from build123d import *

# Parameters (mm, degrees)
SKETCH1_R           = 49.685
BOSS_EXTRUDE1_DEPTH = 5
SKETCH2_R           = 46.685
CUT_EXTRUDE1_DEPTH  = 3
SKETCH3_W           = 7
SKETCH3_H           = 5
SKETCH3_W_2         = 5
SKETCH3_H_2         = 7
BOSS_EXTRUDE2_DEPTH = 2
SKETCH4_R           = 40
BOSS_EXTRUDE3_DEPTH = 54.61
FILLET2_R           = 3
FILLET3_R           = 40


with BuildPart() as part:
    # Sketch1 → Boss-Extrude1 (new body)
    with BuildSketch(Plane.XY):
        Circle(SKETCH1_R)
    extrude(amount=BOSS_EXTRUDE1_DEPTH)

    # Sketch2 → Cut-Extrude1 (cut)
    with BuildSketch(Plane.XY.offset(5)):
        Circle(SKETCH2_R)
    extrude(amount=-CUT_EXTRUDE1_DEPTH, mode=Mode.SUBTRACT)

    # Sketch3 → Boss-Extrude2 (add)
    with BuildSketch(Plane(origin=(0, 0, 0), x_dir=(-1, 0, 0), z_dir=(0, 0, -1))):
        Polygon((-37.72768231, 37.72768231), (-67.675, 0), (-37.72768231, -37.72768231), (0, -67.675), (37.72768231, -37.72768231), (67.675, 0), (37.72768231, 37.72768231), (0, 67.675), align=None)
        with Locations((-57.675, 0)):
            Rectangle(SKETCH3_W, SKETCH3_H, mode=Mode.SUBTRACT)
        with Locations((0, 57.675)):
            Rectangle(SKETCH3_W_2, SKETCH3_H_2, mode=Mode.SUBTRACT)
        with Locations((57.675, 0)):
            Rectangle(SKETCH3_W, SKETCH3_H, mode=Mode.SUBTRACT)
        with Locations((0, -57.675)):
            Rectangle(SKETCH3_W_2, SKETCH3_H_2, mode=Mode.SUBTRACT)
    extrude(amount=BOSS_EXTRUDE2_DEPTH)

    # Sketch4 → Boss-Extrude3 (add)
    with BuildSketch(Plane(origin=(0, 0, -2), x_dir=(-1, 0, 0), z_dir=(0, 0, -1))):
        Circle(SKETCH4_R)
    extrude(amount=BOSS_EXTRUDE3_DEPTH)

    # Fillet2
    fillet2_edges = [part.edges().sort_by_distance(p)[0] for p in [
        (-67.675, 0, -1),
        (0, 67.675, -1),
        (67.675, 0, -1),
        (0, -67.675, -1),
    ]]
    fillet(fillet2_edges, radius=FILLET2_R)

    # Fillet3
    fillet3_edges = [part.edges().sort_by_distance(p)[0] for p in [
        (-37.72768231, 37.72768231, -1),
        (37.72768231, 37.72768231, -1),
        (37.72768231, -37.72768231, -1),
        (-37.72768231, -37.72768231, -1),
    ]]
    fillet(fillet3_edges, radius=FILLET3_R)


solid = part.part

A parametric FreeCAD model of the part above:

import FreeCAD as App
import Part
import Sketcher

V = App.Vector
Q = App.Units.Quantity


def edges_at(feature, points):
    """Names of the edges that pass closest to the given points."""
    edges = feature.Shape.Edges
    near = lambda p: min(range(len(edges)), key=lambda i: edges[i].distToShape(Part.Vertex(*p))[0])
    return sorted({f"Edge{near(p) + 1}" for p in points})

doc = App.newDocument("Part")
body = doc.addObject("PartDesign::Body", "Body")

# Sketch on XY plane
sketch1 = body.newObject("Sketcher::SketchObject", "Sketch")
sketch1.AttachmentSupport = (doc.getObject("XY_Plane"), [""])
sketch1.MapMode = "FlatFace"
sketch1.addGeometry(Part.Circle(V(0, 0, 0), V(0, 0, 1), 50), False)
sketch1.addConstraint([
    Sketcher.Constraint("Coincident", 0, 3, -1, 1),
    Sketcher.Constraint("Diameter", 0, Q("99.37 mm")),
])
pad1 = body.newObject("PartDesign::Pad", "Pad")
pad1.Profile = sketch1
pad1.Length = 5

# Sketch on XY plane
sketch2 = body.newObject("Sketcher::SketchObject", "Sketch001")
sketch2.AttachmentSupport = (doc.getObject("XY_Plane"), [""])
sketch2.MapMode = "FlatFace"
sketch2.AttachmentOffset = App.Placement(V(0, 0, 5), App.Rotation())
sketch2.addGeometry(Part.Circle(V(0, 0, 0), V(0, 0, 1), 47), False)
sketch2.addConstraint([
    Sketcher.Constraint("Coincident", 0, 3, -1, 1),
    Sketcher.Constraint("Diameter", 0, Q("93.37 mm")),
])
pocket1 = body.newObject("PartDesign::Pocket", "Pocket")
pocket1.Profile = sketch2
pocket1.Length = 3

# Sketch on XY plane
sketch3 = body.newObject("Sketcher::SketchObject", "Sketch002")
sketch3.AttachmentSupport = (doc.getObject("XY_Plane"), [""])
sketch3.MapMode = "FlatFace"
sketch3.addGeometry([
    Part.LineSegment(V(38, 38, 0), V(68, 0, 0)),  # 0
    Part.LineSegment(V(68, 0, 0), V(38, -38, 0)),  # 1
    Part.LineSegment(V(38, -38, 0), V(0, -68, 0)),  # 2
    Part.LineSegment(V(0, -68, 0), V(-38, -38, 0)),  # 3
    Part.LineSegment(V(-38, -38, 0), V(-68, 0, 0)),  # 4
    Part.LineSegment(V(-68, 0, 0), V(-38, 38, 0)),  # 5
    Part.LineSegment(V(-38, 38, 0), V(0, 68, 0)),  # 6
    Part.LineSegment(V(0, 68, 0), V(38, 38, 0)),  # 7
    Part.LineSegment(V(-2, -61, 0), V(2, -61, 0)),  # 8
    Part.LineSegment(V(2, -61, 0), V(2, -54, 0)),  # 9
    Part.LineSegment(V(2, -54, 0), V(-2, -54, 0)),  # 10
    Part.LineSegment(V(-2, -54, 0), V(-2, -61, 0)),  # 11
    Part.LineSegment(V(54, -2, 0), V(61, -2, 0)),  # 12
    Part.LineSegment(V(61, -2, 0), V(61, 2, 0)),  # 13
    Part.LineSegment(V(61, 2, 0), V(54, 2, 0)),  # 14
    Part.LineSegment(V(54, 2, 0), V(54, -2, 0)),  # 15
    Part.LineSegment(V(-61, -2, 0), V(-54, -2, 0)),  # 16
    Part.LineSegment(V(-54, -2, 0), V(-54, 2, 0)),  # 17
    Part.LineSegment(V(-54, 2, 0), V(-61, 2, 0)),  # 18
    Part.LineSegment(V(-61, 2, 0), V(-61, -2, 0)),  # 19
    Part.LineSegment(V(-2, 54, 0), V(2, 54, 0)),  # 20
    Part.LineSegment(V(2, 54, 0), V(2, 61, 0)),  # 21
    Part.LineSegment(V(2, 61, 0), V(-2, 61, 0)),  # 22
    Part.LineSegment(V(-2, 61, 0), V(-2, 54, 0)),  # 23
], False)
sketch3.addConstraint([
    Sketcher.Constraint("Coincident", 0, 2, 1, 1),
    Sketcher.Constraint("Coincident", 1, 2, 2, 1),
    Sketcher.Constraint("Coincident", 2, 2, 3, 1),
    Sketcher.Constraint("Coincident", 3, 2, 4, 1),
    Sketcher.Constraint("Coincident", 4, 2, 5, 1),
    Sketcher.Constraint("Coincident", 5, 2, 6, 1),
    Sketcher.Constraint("Coincident", 6, 2, 7, 1),
    Sketcher.Constraint("Coincident", 7, 2, 0, 1),
    Sketcher.Constraint("Coincident", 8, 2, 9, 1),
    Sketcher.Constraint("Coincident", 9, 2, 10, 1),
    Sketcher.Constraint("Coincident", 10, 2, 11, 1),
    Sketcher.Constraint("Coincident", 11, 2, 8, 1),
    Sketcher.Constraint("Coincident", 12, 2, 13, 1),
    Sketcher.Constraint("Coincident", 13, 2, 14, 1),
    Sketcher.Constraint("Coincident", 14, 2, 15, 1),
    Sketcher.Constraint("Coincident", 15, 2, 12, 1),
    Sketcher.Constraint("Coincident", 16, 2, 17, 1),
    Sketcher.Constraint("Coincident", 17, 2, 18, 1),
    Sketcher.Constraint("Coincident", 18, 2, 19, 1),
    Sketcher.Constraint("Coincident", 19, 2, 16, 1),
    Sketcher.Constraint("Coincident", 20, 2, 21, 1),
    Sketcher.Constraint("Coincident", 21, 2, 22, 1),
    Sketcher.Constraint("Coincident", 22, 2, 23, 1),
    Sketcher.Constraint("Coincident", 23, 2, 20, 1),
    Sketcher.Constraint("Horizontal", 8),
    Sketcher.Constraint("Vertical", 9),
    Sketcher.Constraint("Horizontal", 10),
    Sketcher.Constraint("Vertical", 11),
    Sketcher.Constraint("Horizontal", 12),
    Sketcher.Constraint("Vertical", 13),
    Sketcher.Constraint("Horizontal", 14),
    Sketcher.Constraint("Vertical", 15),
    Sketcher.Constraint("Horizontal", 16),
    Sketcher.Constraint("Vertical", 17),
    Sketcher.Constraint("Horizontal", 18),
    Sketcher.Constraint("Vertical", 19),
    Sketcher.Constraint("Horizontal", 20),
    Sketcher.Constraint("Vertical", 21),
    Sketcher.Constraint("Horizontal", 22),
    Sketcher.Constraint("Vertical", 23),
    Sketcher.Constraint("Symmetric", 0, 2, 4, 2, -1, 1),
    Sketcher.Constraint("Symmetric", 1, 2, 5, 2, -1, 1),
    Sketcher.Constraint("Symmetric", 2, 2, 6, 2, -1, 1),
    Sketcher.Constraint("Symmetric", 3, 2, 7, 2, -1, 1),
    Sketcher.Constraint("Symmetric", 14, 2, 16, 2, -1, 1),
    Sketcher.Constraint("Symmetric", 12, 2, 18, 2, -1, 1),
    Sketcher.Constraint("Symmetric", 10, 2, 20, 2, -1, 1),
    Sketcher.Constraint("Symmetric", 8, 2, 22, 2, -1, 1),
    Sketcher.Constraint("Symmetric", 1, 2, 3, 2, -2),
    Sketcher.Constraint("PointOnObject", 0, 2, -1),
    Sketcher.Constraint("PointOnObject", 2, 2, -2),
    Sketcher.Constraint("Perpendicular", 0, 2),
    Sketcher.Constraint("Horizontal", 15, 2, 16, 2),
    Sketcher.Constraint("Vertical", 9, 2, 20, 2),
    Sketcher.Constraint("Equal", 18, 9),
    Sketcher.Constraint("Equal", 22, 13),
    Sketcher.Constraint("Equal", 1, 2),
    Sketcher.Constraint("DistanceX", 8, 1, 8, 2, Q("5 mm")),
    Sketcher.Constraint("DistanceX", 12, 1, 12, 2, Q("7 mm")),
    Sketcher.Constraint("DistanceY", 2, 2, 8, 2, Q("6.5 mm")),
    Sketcher.Constraint("DistanceX", 12, 2, 0, 2, Q("6.5 mm")),
    Sketcher.Constraint("DistanceX", 4, 2, 0, 2, Q("135.35 mm")),
    Sketcher.Constraint("Distance", 0, Q("48.16866 mm")),
])
pad2 = body.newObject("PartDesign::Pad", "Pad001")
pad2.Profile = sketch3
pad2.Length = 2
pad2.Reversed = True

# Sketch on XY plane
sketch4 = body.newObject("Sketcher::SketchObject", "Sketch003")
sketch4.AttachmentSupport = (doc.getObject("XY_Plane"), [""])
sketch4.MapMode = "FlatFace"
sketch4.AttachmentOffset = App.Placement(V(0, 0, -2), App.Rotation())
sketch4.addGeometry(Part.Circle(V(0, 0, 0), V(0, 0, 1), 40), False)
sketch4.addConstraint([
    Sketcher.Constraint("Coincident", 0, 3, -1, 1),
    Sketcher.Constraint("Diameter", 0, Q("80 mm")),
])
pad3 = body.newObject("PartDesign::Pad", "Pad002")
pad3.Profile = sketch4
pad3.Length = 54.61
pad3.Reversed = True
doc.recompute()

fillet = body.newObject("PartDesign::Fillet", "Fillet")
fillet.Base = (pad3, edges_at(pad3, [
    (-67.675, 0, -1),
    (0, 67.675, -1),
    (67.675, 0, -1),
    (0, -67.675, -1),
]))
fillet.Radius = 3
doc.recompute()

fillet2 = body.newObject("PartDesign::Fillet", "Fillet001")
fillet2.Base = (fillet, edges_at(fillet, [
    (-37.728, 37.728, -1),
    (37.728, 37.728, -1),
    (37.728, -37.728, -1),
    (-37.728, -37.728, -1),
]))
fillet2.Radius = 40

doc.recompute()
